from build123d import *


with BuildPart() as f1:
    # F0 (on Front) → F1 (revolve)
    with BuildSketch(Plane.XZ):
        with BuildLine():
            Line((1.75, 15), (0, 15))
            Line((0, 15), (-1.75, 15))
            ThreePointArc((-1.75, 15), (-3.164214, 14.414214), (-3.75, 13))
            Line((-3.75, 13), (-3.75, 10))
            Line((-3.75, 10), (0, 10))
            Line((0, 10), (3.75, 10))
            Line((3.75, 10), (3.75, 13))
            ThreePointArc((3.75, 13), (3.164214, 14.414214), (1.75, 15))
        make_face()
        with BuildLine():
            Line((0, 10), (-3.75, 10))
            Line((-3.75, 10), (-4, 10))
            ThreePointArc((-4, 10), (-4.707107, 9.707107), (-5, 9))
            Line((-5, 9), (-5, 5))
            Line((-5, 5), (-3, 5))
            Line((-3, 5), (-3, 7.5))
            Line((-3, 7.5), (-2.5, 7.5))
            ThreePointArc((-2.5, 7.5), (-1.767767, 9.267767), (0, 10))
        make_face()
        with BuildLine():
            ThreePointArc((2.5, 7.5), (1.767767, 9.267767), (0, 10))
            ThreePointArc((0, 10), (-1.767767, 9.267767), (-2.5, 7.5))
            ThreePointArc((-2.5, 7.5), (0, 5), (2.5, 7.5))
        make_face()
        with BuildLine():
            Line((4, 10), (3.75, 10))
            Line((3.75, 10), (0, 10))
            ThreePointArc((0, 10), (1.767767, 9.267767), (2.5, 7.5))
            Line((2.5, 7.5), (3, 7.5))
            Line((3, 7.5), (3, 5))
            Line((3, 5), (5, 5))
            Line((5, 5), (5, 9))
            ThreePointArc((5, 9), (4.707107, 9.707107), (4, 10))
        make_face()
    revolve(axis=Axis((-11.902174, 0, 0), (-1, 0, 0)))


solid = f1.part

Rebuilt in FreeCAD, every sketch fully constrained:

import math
import FreeCAD as App
import Part
import Sketcher
from FreeCAD import Vector
Q = App.Units.Quantity

doc = App.newDocument("Part")
params = doc.addObject("Spreadsheet::Sheet", "Params")
for row, (alias, value) in enumerate([
    ("sketch1_radius", "1.999999 mm"),
    ("sketch1_radius2", "0.999999 mm"),
    ("sketch1_radius3", "2.5 mm"),
    ("sketch1_width", "2 mm"),
    ("sketch1_height", "3 mm"),
    ("revolution_angle", "360 deg"),
], start=1):
    params.set(f"A{row}", alias)
    params.set(f"B{row}", "=" + value)
    params.setAlias(f"B{row}", alias)

body = doc.addObject("PartDesign::Body", "Body")

sketch1 = doc.addObject("Sketcher::SketchObject", "Sketch")
body.addObject(sketch1)
sketch1.AttachmentSupport = (doc.XZ_Plane, [""])
sketch1.MapMode = "FlatFace"
sketch1.addGeometry([
    Part.LineSegment(Vector(1.75, 15, 0), Vector(-1.75, 15, 0)),
    Part.ArcOfCircle(Part.Circle(Vector(-1.75, 13, 0), Vector(0, 0, 1), 2), math.radians(90), math.radians(180)),
    Part.LineSegment(Vector(-3.75, 13, 0), Vector(-3.75, 10, 0)),
    Part.LineSegment(Vector(-3.75, 10, 0), Vector(-4, 10, 0)),
    Part.ArcOfCircle(Part.Circle(Vector(-4, 9, 0), Vector(0, 0, 1), 1), math.radians(90), math.radians(180)),
    Part.LineSegment(Vector(-5, 9, 0), Vector(-5, 5, 0)),
    Part.LineSegment(Vector(-5, 5, 0), Vector(-3, 5, 0)),
    Part.LineSegment(Vector(-3, 5, 0), Vector(-3, 7.5, 0)),
    Part.LineSegment(Vector(-3, 7.5, 0), Vector(-2.5, 7.5, 0)),
    Part.ArcOfCircle(Part.Circle(Vector(0, 7.5, 0), Vector(0, 0, 1), 2.5), math.radians(180), math.radians(360)),
    Part.LineSegment(Vector(2.5, 7.5, 0), Vector(3, 7.5, 0)),
    Part.LineSegment(Vector(3, 7.5, 0), Vector(3, 5, 0)),
    Part.LineSegment(Vector(3, 5, 0), Vector(5, 5, 0)),
    Part.LineSegment(Vector(5, 5, 0), Vector(5, 9, 0)),
    Part.ArcOfCircle(Part.Circle(Vector(4, 9, 0), Vector(0, 0, 1), 1), math.radians(0), math.radians(90)),
    Part.LineSegment(Vector(4, 10, 0), Vector(3.75, 10, 0)),
    Part.LineSegment(Vector(3.75, 10, 0), Vector(3.75, 13, 0)),
    Part.ArcOfCircle(Part.Circle(Vector(1.75, 13, 0), Vector(0, 0, 1), 2), math.radians(0), math.radians(90)),
], False)
sketch1.addConstraint([
    Sketcher.Constraint("Tangent", 0, 2, 1, 1),
    Sketcher.Constraint("Tangent", 1, 2, 2, 1),
    Sketcher.Constraint("Coincident", 2, 2, 3, 1),
    Sketcher.Constraint("Tangent", 3, 2, 4, 1),
    Sketcher.Constraint("Tangent", 4, 2, 5, 1),
    Sketcher.Constraint("Coincident", 5, 2, 6, 1),
    Sketcher.Constraint("Coincident", 6, 2, 7, 1),
    Sketcher.Constraint("Coincident", 7, 2, 8, 1),
    Sketcher.Constraint("Coincident", 8, 2, 9, 1),
    Sketcher.Constraint("Coincident", 9, 2, 10, 1),
    Sketcher.Constraint("Coincident", 10, 2, 11, 1),
    Sketcher.Constraint("Coincident", 11, 2, 12, 1),
    Sketcher.Constraint("Coincident", 12, 2, 13, 1),
    Sketcher.Constraint("Tangent", 13, 2, 14, 1),
    Sketcher.Constraint("Tangent", 14, 2, 15, 1),
    Sketcher.Constraint("Coincident", 15, 2, 16, 1),
    Sketcher.Constraint("Tangent", 16, 2, 17, 1),
    Sketcher.Constraint("Tangent", 17, 2, 0, 1),
    Sketcher.Constraint("Horizontal", 0),
    Sketcher.Constraint("Vertical", 2),
    Sketcher.Constraint("Horizontal", 3),
    Sketcher.Constraint("Vertical", 5),
    Sketcher.Constraint("Horizontal", 6),
    Sketcher.Constraint("Vertical", 7),
    Sketcher.Constraint("Horizontal", 8),
    Sketcher.Constraint("Horizontal", 10),
    Sketcher.Constraint("Vertical", 11),
    Sketcher.Constraint("Horizontal", 12),
    Sketcher.Constraint("Vertical", 13),
    Sketcher.Constraint("Horizontal", 15),
    Sketcher.Constraint("Vertical", 16),
    Sketcher.Constraint("Equal", 4, 14),
    Sketcher.Constraint("Equal", 1, 17),
    Sketcher.Constraint("Symmetric", 4, 3, 14, 3, -2),
    Sketcher.Constraint("Symmetric", 8, 2, 9, 2, -2),
    Sketcher.Constraint("Symmetric", 6, 2, 11, 2, -2),
    Sketcher.Constraint("Horizontal", 9, 3, 7, 2),
    Sketcher.Constraint("Equal", 3, 15),
    Sketcher.Constraint("Radius", 1, Q("1.999999 mm")),
    Sketcher.Constraint("Radius", 4, Q("0.999999 mm")),
    Sketcher.Constraint("Radius", 9, Q("2.5 mm")),
    Sketcher.Constraint("DistanceX", 6, 1, 6, 2, Q("2 mm")),
    Sketcher.Constraint("DistanceY", 2, 2, 2, 1, Q("3 mm")),
    Sketcher.Constraint("DistanceY", 5, 2, 5, 1, Q("4 mm")),
    Sketcher.Constraint("DistanceX", 0, 2, 0, 1, Q("3.5 mm")),
    Sketcher.Constraint("DistanceX", 8, 1, 8, 2, Q("0.5 mm")),
    Sketcher.Constraint("DistanceY", 7, 1, 7, 2, Q("2.5 mm")),
    Sketcher.Constraint("DistanceY", -1, 1, 1, 3, Q("13.000001 mm")),
])
sketch1.setExpression("Constraints[38]", "Params.sketch1_radius")
sketch1.setExpression("Constraints[39]", "Params.sketch1_radius2")
sketch1.setExpression("Constraints[40]", "Params.sketch1_radius3")
sketch1.setExpression("Constraints[41]", "Params.sketch1_width")
sketch1.setExpression("Constraints[42]", "Params.sketch1_height")
revolution = doc.addObject("PartDesign::Revolution", "Revolution")
body.addObject(revolution)
revolution.Profile = sketch1
revolution.ReferenceAxis = (sketch1, ["H_Axis"])
revolution.setExpression("Angle", "Params.revolution_angle")

doc.recompute()
